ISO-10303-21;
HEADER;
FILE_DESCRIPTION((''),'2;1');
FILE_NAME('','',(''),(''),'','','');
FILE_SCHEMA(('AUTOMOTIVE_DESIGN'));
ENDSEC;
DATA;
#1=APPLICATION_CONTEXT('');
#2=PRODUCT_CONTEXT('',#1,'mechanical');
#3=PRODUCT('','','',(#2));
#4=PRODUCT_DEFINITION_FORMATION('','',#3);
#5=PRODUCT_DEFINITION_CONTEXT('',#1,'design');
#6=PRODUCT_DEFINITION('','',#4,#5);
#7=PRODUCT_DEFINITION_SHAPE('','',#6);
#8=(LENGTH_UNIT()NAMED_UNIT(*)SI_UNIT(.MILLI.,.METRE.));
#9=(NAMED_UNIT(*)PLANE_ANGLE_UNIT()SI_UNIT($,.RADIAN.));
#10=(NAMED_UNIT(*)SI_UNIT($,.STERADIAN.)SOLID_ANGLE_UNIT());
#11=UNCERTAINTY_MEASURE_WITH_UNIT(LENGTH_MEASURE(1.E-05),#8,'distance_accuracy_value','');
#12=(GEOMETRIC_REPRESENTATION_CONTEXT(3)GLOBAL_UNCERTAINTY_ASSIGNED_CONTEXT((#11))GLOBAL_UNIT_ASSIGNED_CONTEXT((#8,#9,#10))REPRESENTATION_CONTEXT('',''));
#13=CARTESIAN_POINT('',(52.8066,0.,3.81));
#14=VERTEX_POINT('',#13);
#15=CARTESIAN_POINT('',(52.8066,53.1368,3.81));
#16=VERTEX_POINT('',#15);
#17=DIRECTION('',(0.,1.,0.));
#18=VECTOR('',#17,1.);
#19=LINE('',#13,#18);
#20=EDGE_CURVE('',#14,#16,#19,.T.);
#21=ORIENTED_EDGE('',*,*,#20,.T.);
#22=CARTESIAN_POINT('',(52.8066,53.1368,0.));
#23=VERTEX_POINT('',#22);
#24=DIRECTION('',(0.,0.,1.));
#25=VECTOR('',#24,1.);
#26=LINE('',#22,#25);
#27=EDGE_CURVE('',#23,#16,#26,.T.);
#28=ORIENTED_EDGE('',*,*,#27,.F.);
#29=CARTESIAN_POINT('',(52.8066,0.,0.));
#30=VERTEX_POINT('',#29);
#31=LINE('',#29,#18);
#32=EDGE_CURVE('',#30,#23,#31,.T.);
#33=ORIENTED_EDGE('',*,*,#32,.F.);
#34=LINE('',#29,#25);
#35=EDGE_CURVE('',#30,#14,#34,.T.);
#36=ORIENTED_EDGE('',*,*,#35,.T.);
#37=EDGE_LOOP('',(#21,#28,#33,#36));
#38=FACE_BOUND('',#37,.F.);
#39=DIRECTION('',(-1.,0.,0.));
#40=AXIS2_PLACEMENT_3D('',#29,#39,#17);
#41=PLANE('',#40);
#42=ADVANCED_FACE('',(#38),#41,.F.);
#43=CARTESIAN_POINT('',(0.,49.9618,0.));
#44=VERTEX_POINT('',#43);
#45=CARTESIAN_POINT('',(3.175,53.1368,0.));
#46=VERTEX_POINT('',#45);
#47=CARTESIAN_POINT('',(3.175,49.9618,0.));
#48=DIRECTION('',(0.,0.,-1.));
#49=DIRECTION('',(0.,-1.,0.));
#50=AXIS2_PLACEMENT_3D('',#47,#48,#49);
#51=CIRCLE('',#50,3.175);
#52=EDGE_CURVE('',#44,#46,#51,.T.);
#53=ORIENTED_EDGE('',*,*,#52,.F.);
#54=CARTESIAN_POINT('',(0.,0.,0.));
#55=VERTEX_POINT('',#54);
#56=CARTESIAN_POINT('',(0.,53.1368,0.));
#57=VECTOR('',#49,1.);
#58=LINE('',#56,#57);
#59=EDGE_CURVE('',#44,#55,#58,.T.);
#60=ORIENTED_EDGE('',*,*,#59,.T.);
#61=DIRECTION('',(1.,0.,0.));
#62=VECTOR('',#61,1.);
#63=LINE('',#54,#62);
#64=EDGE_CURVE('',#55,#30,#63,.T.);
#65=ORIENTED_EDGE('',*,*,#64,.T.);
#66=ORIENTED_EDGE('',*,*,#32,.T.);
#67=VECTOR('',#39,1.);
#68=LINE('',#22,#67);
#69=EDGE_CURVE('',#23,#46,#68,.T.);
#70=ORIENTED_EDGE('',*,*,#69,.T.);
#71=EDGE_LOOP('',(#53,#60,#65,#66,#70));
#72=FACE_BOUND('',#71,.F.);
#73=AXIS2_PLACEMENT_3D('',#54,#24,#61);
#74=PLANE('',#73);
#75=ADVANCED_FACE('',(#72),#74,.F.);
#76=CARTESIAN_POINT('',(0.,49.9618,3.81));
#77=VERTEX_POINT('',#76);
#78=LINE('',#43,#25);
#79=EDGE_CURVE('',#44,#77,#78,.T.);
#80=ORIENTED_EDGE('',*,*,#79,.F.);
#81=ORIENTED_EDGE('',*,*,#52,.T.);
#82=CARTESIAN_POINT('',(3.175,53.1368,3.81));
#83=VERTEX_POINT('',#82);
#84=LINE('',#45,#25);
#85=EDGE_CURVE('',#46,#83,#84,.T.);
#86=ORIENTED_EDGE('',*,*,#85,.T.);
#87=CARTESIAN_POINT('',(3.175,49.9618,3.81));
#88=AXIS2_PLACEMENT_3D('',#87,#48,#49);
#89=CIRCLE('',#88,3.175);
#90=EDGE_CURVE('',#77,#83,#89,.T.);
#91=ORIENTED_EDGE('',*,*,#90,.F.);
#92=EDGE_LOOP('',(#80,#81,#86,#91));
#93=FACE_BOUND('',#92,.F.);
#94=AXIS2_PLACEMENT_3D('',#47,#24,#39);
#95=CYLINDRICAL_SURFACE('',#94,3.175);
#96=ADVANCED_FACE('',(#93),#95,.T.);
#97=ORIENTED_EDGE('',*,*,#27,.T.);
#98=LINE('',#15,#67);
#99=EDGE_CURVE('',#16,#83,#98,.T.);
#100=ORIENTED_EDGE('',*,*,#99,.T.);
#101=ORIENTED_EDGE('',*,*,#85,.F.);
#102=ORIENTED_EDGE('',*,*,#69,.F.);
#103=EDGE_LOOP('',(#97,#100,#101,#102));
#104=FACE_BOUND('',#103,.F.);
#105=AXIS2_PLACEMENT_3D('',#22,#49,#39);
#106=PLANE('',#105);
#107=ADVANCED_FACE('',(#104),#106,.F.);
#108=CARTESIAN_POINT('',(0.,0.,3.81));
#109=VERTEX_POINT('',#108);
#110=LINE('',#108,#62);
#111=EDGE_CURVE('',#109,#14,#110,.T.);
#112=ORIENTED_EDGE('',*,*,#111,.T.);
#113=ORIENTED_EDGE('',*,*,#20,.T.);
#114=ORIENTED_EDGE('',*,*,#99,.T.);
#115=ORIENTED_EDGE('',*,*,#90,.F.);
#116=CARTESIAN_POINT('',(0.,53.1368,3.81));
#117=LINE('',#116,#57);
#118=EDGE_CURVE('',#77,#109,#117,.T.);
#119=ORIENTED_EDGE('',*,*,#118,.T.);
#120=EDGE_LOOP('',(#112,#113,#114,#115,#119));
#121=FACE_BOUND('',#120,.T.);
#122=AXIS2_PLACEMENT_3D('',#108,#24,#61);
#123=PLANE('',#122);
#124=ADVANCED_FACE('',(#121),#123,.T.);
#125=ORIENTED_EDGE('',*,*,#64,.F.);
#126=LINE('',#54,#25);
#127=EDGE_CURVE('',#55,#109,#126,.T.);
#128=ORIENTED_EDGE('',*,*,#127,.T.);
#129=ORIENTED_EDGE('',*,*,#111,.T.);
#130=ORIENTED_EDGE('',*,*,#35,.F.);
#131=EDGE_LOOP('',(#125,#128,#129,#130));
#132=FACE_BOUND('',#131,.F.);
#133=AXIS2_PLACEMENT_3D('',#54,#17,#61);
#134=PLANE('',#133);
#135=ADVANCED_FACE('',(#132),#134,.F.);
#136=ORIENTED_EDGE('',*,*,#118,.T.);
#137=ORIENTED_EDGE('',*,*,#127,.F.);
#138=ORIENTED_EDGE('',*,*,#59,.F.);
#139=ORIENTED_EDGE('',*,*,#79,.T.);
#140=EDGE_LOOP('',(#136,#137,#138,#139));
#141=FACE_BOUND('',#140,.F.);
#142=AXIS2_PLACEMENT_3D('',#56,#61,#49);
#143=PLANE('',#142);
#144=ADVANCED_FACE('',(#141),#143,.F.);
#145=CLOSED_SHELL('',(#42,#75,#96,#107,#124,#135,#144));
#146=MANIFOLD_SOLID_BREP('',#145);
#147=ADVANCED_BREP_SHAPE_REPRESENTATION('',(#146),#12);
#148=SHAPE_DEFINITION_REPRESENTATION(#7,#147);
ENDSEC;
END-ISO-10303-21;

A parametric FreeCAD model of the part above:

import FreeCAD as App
import Part
import Sketcher
from FreeCAD import Vector
Q = App.Units.Quantity


def edges_at(feature, points):
    """Names of the edges that pass closest to the given points."""
    edges = feature.Shape.Edges
    near = lambda p: min(range(len(edges)), key=lambda i: edges[i].distToShape(Part.Vertex(*p))[0])
    return sorted({f"Edge{near(p) + 1}" for p in points})


def add_polygon(sketch, points):
    """Adds a closed chain of lines whose ends are joined by coincident constraints."""
    first, n = sketch.GeometryCount, len(points)
    for a, b in zip(points, points[1:] + points[:1]):
        sketch.addGeometry(Part.LineSegment(App.Vector(*a, 0), App.Vector(*b, 0)), False)
    for i in range(n):
        sketch.addConstraint(Sketcher.Constraint("Coincident", first + i, 2, first + (i + 1) % n, 1))

doc = App.newDocument("Part")
body = doc.addObject("PartDesign::Body", "Body")

sketch1 = body.newObject("Sketcher::SketchObject", "Sketch")
sketch1.AttachmentSupport = (doc.getObject("XY_Plane"), [""])
sketch1.MapMode = "FlatFace"
add_polygon(sketch1, [(0, 53.1368), (0, 0), (52.8066, 0), (52.8066, 53.1368)])
sketch1.addConstraint([
    Sketcher.Constraint("Vertical", 0),
    Sketcher.Constraint("Horizontal", 1),
    Sketcher.Constraint("Vertical", 2),
    Sketcher.Constraint("Horizontal", 3),
    Sketcher.Constraint("Coincident", 0, 2, -1, 1),
    Sketcher.Constraint("DistanceX", 1, 1, 1, 2, Q("2.079 in")),
    Sketcher.Constraint("DistanceY", 0, 2, 0, 1, Q("2.092 in")),
])
pad1 = body.newObject("PartDesign::Pad", "Pad")
pad1.Profile = sketch1
pad1.Length = Q("0.15 in")
doc.recompute()

fillet = body.newObject("PartDesign::Fillet", "Fillet")
fillet.Base = (pad1, edges_at(pad1, [(0, 53.137, 1.905)]))
fillet.Radius = Q("0.125 in")

doc.recompute()
